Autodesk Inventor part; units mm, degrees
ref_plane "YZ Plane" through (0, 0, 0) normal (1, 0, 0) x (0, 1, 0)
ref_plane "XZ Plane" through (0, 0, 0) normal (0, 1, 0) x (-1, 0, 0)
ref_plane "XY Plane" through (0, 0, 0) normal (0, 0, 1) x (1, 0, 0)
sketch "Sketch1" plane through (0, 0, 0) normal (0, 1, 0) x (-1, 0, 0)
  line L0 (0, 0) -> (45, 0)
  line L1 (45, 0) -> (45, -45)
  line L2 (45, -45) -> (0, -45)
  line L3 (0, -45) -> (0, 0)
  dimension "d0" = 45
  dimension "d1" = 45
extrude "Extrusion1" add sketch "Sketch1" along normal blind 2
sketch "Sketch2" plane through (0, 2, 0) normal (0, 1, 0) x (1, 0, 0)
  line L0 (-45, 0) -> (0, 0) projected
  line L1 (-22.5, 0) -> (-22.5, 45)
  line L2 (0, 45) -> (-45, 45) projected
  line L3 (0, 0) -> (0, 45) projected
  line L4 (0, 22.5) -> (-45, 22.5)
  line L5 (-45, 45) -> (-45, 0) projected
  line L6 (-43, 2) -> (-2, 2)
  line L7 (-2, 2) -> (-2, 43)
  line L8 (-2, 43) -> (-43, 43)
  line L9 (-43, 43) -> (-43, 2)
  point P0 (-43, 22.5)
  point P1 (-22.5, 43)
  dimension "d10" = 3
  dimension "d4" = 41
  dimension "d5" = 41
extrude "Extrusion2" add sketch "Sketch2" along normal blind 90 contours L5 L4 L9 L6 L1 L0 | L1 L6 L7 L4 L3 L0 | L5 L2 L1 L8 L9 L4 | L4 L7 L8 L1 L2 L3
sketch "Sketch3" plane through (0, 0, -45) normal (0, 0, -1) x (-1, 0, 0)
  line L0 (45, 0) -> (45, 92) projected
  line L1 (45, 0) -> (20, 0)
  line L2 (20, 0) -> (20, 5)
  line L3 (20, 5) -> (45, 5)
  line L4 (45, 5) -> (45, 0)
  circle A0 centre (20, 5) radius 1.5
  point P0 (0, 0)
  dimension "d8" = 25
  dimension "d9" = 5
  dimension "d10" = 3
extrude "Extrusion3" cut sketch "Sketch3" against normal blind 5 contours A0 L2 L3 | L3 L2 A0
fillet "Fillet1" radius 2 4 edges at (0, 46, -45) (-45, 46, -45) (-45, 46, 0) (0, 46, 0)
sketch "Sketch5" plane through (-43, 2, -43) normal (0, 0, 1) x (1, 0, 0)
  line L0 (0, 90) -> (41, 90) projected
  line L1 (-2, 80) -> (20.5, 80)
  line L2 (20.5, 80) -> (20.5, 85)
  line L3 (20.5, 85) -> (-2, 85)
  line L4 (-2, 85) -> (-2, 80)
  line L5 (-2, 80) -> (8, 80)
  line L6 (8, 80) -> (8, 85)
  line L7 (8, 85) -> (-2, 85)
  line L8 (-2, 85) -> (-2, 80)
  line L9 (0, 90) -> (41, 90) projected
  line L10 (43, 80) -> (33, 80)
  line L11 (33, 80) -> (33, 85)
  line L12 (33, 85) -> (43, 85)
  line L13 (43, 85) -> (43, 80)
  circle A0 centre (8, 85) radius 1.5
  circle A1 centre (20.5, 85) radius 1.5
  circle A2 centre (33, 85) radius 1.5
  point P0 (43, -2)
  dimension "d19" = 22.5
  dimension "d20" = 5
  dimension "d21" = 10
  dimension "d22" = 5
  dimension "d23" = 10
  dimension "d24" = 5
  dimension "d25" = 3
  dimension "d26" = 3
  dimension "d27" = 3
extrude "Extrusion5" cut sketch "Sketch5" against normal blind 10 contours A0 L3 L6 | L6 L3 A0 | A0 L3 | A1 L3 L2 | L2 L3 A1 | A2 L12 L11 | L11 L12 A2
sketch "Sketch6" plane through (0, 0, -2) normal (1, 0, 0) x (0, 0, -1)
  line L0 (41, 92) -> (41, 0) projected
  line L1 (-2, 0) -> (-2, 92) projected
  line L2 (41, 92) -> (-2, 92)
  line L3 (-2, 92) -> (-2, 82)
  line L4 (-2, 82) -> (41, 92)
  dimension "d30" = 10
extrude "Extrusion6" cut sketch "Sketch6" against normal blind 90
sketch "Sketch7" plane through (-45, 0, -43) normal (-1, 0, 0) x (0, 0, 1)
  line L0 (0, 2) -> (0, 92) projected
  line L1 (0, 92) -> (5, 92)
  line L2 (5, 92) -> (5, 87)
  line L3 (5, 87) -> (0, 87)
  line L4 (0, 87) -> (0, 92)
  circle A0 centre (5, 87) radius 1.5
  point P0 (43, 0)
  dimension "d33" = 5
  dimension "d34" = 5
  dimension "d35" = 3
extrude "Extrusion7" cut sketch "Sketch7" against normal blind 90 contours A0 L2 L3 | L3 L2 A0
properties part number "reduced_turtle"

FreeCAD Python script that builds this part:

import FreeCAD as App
import Part
import Sketcher
from FreeCAD import Vector


def edges_at(feature, points):
    """Names of the edges that pass closest to the given points."""
    edges = feature.Shape.Edges
    near = lambda p: min(range(len(edges)), key=lambda i: edges[i].distToShape(Part.Vertex(*p))[0])
    return sorted({f"Edge{near(p) + 1}" for p in points})

doc = App.newDocument("Part")
body = doc.addObject("PartDesign::Body", "Body")

# Sketch on XZ plane
sketch1 = body.newObject("Sketcher::SketchObject", "Sketch")
sketch1.AttachmentSupport = (doc.getObject("XZ_Plane"), [""])
sketch1.MapMode = "FlatFace"
sketch1.addGeometry(Part.LineSegment(Vector(-45, 0, 0), Vector(0, 0, 0)), False)
sketch1.addGeometry(Part.LineSegment(Vector(0, 0, 0), Vector(0, -45, 0)), False)
sketch1.addGeometry(Part.LineSegment(Vector(0, -45, 0), Vector(-45, -45, 0)), False)
sketch1.addGeometry(Part.LineSegment(Vector(-45, -45, 0), Vector(-45, 0, 0)), False)
sketch1.addConstraint(Sketcher.Constraint("Coincident", 0, 2, 1, 1))
sketch1.addConstraint(Sketcher.Constraint("Coincident", 1, 2, 2, 1))
sketch1.addConstraint(Sketcher.Constraint("Coincident", 2, 2, 3, 1))
sketch1.addConstraint(Sketcher.Constraint("Coincident", 3, 2, 0, 1))
sketch1.addConstraint(Sketcher.Constraint("Horizontal", 0))
sketch1.addConstraint(Sketcher.Constraint("Vertical", 1))
sketch1.addConstraint(Sketcher.Constraint("Horizontal", 2))
sketch1.addConstraint(Sketcher.Constraint("Vertical", 3))
sketch1.addConstraint(Sketcher.Constraint("Coincident", 0, 2, -1, 1))
sketch1.addConstraint(Sketcher.Constraint("Equal", 2, 1))
sketch1.addConstraint(Sketcher.Constraint("DistanceX", 0, 1, 0, 2, 45.0))
pad1 = body.newObject("PartDesign::Pad", "Pad")
pad1.Profile = sketch1
pad1.Length = 2
pad1.Reversed = True

# Sketch on XZ plane
sketch2 = body.newObject("Sketcher::SketchObject", "Sketch001")
sketch2.AttachmentSupport = (doc.getObject("XZ_Plane"), [""])
sketch2.MapMode = "FlatFace"
sketch2.AttachmentOffset = App.Placement(Vector(0, 0, -2), App.Rotation())
sketch2.addGeometry(Part.LineSegment(Vector(-45, 0, 0), Vector(0, 0, 0)), False)
sketch2.addGeometry(Part.LineSegment(Vector(0, 0, 0), Vector(0, -45, 0)), False)
sketch2.addGeometry(Part.LineSegment(Vector(0, -45, 0), Vector(-45, -45, 0)), False)
sketch2.addGeometry(Part.LineSegment(Vector(-45, -45, 0), Vector(-45, 0, 0)), False)
sketch2.addGeometry(Part.LineSegment(Vector(-43, -2, 0), Vector(-43, -43, 0)), False)
sketch2.addGeometry(Part.LineSegment(Vector(-43, -43, 0), Vector(-2, -43, 0)), False)
sketch2.addGeometry(Part.LineSegment(Vector(-2, -43, 0), Vector(-2, -2, 0)), False)
sketch2.addGeometry(Part.LineSegment(Vector(-2, -2, 0), Vector(-43, -2, 0)), False)
sketch2.addConstraint(Sketcher.Constraint("Coincident", 0, 2, 1, 1))
sketch2.addConstraint(Sketcher.Constraint("Coincident", 1, 2, 2, 1))
sketch2.addConstraint(Sketcher.Constraint("Coincident", 2, 2, 3, 1))
sketch2.addConstraint(Sketcher.Constraint("Coincident", 3, 2, 0, 1))
sketch2.addConstraint(Sketcher.Constraint("Coincident", 4, 2, 5, 1))
sketch2.addConstraint(Sketcher.Constraint("Coincident", 5, 2, 6, 1))
sketch2.addConstraint(Sketcher.Constraint("Coincident", 6, 2, 7, 1))
sketch2.addConstraint(Sketcher.Constraint("Coincident", 7, 2, 4, 1))
sketch2.addConstraint(Sketcher.Constraint("Horizontal", 0))
sketch2.addConstraint(Sketcher.Constraint("Vertical", 1))
sketch2.addConstraint(Sketcher.Constraint("Horizontal", 2))
sketch2.addConstraint(Sketcher.Constraint("Vertical", 3))
sketch2.addConstraint(Sketcher.Constraint("Vertical", 4))
sketch2.addConstraint(Sketcher.Constraint("Horizontal", 5))
sketch2.addConstraint(Sketcher.Constraint("Vertical", 6))
sketch2.addConstraint(Sketcher.Constraint("Horizontal", 7))
sketch2.addConstraint(Sketcher.Constraint("Coincident", 0, 2, -1, 1))
sketch2.addConstraint(Sketcher.Constraint("Equal", 2, 1))
sketch2.addConstraint(Sketcher.Constraint("Equal", 7, 4))
sketch2.addConstraint(Sketcher.Constraint("DistanceX", 5, 1, 5, 2, 41.0))
sketch2.addConstraint(Sketcher.Constraint("DistanceX", 0, 1, 0, 2, 45.0))
sketch2.addConstraint(Sketcher.Constraint("DistanceX", 4, 2, -1, 1, 43.0))
sketch2.addConstraint(Sketcher.Constraint("DistanceY", 4, 2, -1, 1, 43.0))
pad2 = body.newObject("PartDesign::Pad", "Pad001")
pad2.Profile = sketch2
pad2.Length = 90
pad2.Reversed = True

# Sketch on XY plane
sketch3 = body.newObject("Sketcher::SketchObject", "Sketch002")
sketch3.AttachmentSupport = (doc.getObject("XY_Plane"), [""])
sketch3.MapMode = "FlatFace"
sketch3.AttachmentOffset = App.Placement(Vector(0, 0, -45), App.Rotation())
sketch3.addGeometry(Part.Circle(Vector(-20, 5, 0), Vector(0, 0, 1), 1.5), False)
sketch3.addConstraint(Sketcher.Constraint("Diameter", 0, 3.0))
sketch3.addConstraint(Sketcher.Constraint("DistanceY", -1, 1, 0, 3, 5.0))
sketch3.addConstraint(Sketcher.Constraint("DistanceX", 0, 3, -1, 1, 20.0))
pocket1 = body.newObject("PartDesign::Pocket", "Pocket")
pocket1.Profile = sketch3
pocket1.Length = 5
pocket1.Reversed = True
doc.recompute()

fillet = body.newObject("PartDesign::Fillet", "Fillet")
fillet.Base = (pocket1, edges_at(pocket1, [
    (0, 46, -45),
    (-45, 46, -45),
    (-45, 46, 0),
    (0, 46, 0),
]))
fillet.Radius = 2

# Sketch on XY plane
sketch4 = body.newObject("Sketcher::SketchObject", "Sketch003")
sketch4.AttachmentSupport = (doc.getObject("XY_Plane"), [""])
sketch4.MapMode = "FlatFace"
sketch4.AttachmentOffset = App.Placement(Vector(0, 0, -43), App.Rotation())
sketch4.addGeometry(Part.Circle(Vector(-35, 87, 0), Vector(0, 0, 1), 1.5), False)
sketch4.addGeometry(Part.Circle(Vector(-22.5, 87, 0), Vector(0, 0, 1), 1.5), False)
sketch4.addGeometry(Part.Circle(Vector(-10, 87, 0), Vector(0, 0, 1), 1.5), False)
sketch4.addConstraint(Sketcher.Constraint("Equal", 0, 1))
sketch4.addConstraint(Sketcher.Constraint("Equal", 1, 2))
sketch4.addConstraint(Sketcher.Constraint("Horizontal", 0, 3, 1, 3))
sketch4.addConstraint(Sketcher.Constraint("Horizontal", 1, 3, 2, 3))
sketch4.addConstraint(Sketcher.Constraint("Diameter", 0, 3.0))
sketch4.addConstraint(Sketcher.Constraint("DistanceX", 2, 3, -1, 1, 10.0))
sketch4.addConstraint(Sketcher.Constraint("DistanceX", 1, 3, -1, 1, 22.5))
sketch4.addConstraint(Sketcher.Constraint("DistanceX", 0, 3, -1, 1, 35.0))
sketch4.addConstraint(Sketcher.Constraint("DistanceY", -1, 1, 0, 3, 87.0))
pocket2 = body.newObject("PartDesign::Pocket", "Pocket001")
pocket2.Profile = sketch4
pocket2.Length = 10

# Sketch on YZ plane
sketch5 = body.newObject("Sketcher::SketchObject", "Sketch004")
sketch5.AttachmentSupport = (doc.getObject("YZ_Plane"), [""])
sketch5.MapMode = "FlatFace"
sketch5.addGeometry(Part.LineSegment(Vector(92, 0, 0), Vector(82, 0, 0)), False)
sketch5.addGeometry(Part.LineSegment(Vector(82, 0, 0), Vector(92, -43, 0)), False)
sketch5.addGeometry(Part.LineSegment(Vector(92, -43, 0), Vector(92, 0, 0)), False)
sketch5.addConstraint(Sketcher.Constraint("Coincident", 0, 2, 1, 1))
sketch5.addConstraint(Sketcher.Constraint("Coincident", 1, 2, 2, 1))
sketch5.addConstraint(Sketcher.Constraint("Coincident", 2, 2, 0, 1))
sketch5.addConstraint(Sketcher.Constraint("Horizontal", 0))
sketch5.addConstraint(Sketcher.Constraint("Vertical", 2))
sketch5.addConstraint(Sketcher.Constraint("PointOnObject", 0, 2, -1))
sketch5.addConstraint(Sketcher.Constraint("DistanceX", 0, 2, 0, 1, 10.0))
sketch5.addConstraint(Sketcher.Constraint("DistanceY", 2, 1, 2, 2, 43.0))
sketch5.addConstraint(Sketcher.Constraint("DistanceX", -1, 1, 0, 2, 82.0))
pocket3 = body.newObject("PartDesign::Pocket", "Pocket002")
pocket3.Profile = sketch5
pocket3.Length = 90

# Sketch on YZ plane
sketch6 = body.newObject("Sketcher::SketchObject", "Sketch005")
sketch6.AttachmentSupport = (doc.getObject("YZ_Plane"), [""])
sketch6.MapMode = "FlatFace"
sketch6.AttachmentOffset = App.Placement(Vector(0, 0, -45), App.Rotation())
sketch6.addGeometry(Part.Circle(Vector(87, -38, 0), Vector(0, 0, 1), 1.5), False)
sketch6.addConstraint(Sketcher.Constraint("Diameter", 0, 3.0))
sketch6.addConstraint(Sketcher.Constraint("DistanceX", -1, 1, 0, 3, 87.0))
sketch6.addConstraint(Sketcher.Constraint("DistanceY", 0, 3, -1, 1, 38.0))
pocket4 = body.newObject("PartDesign::Pocket", "Pocket003")
pocket4.Profile = sketch6
pocket4.Length = 90
pocket4.Reversed = True

doc.recompute()
